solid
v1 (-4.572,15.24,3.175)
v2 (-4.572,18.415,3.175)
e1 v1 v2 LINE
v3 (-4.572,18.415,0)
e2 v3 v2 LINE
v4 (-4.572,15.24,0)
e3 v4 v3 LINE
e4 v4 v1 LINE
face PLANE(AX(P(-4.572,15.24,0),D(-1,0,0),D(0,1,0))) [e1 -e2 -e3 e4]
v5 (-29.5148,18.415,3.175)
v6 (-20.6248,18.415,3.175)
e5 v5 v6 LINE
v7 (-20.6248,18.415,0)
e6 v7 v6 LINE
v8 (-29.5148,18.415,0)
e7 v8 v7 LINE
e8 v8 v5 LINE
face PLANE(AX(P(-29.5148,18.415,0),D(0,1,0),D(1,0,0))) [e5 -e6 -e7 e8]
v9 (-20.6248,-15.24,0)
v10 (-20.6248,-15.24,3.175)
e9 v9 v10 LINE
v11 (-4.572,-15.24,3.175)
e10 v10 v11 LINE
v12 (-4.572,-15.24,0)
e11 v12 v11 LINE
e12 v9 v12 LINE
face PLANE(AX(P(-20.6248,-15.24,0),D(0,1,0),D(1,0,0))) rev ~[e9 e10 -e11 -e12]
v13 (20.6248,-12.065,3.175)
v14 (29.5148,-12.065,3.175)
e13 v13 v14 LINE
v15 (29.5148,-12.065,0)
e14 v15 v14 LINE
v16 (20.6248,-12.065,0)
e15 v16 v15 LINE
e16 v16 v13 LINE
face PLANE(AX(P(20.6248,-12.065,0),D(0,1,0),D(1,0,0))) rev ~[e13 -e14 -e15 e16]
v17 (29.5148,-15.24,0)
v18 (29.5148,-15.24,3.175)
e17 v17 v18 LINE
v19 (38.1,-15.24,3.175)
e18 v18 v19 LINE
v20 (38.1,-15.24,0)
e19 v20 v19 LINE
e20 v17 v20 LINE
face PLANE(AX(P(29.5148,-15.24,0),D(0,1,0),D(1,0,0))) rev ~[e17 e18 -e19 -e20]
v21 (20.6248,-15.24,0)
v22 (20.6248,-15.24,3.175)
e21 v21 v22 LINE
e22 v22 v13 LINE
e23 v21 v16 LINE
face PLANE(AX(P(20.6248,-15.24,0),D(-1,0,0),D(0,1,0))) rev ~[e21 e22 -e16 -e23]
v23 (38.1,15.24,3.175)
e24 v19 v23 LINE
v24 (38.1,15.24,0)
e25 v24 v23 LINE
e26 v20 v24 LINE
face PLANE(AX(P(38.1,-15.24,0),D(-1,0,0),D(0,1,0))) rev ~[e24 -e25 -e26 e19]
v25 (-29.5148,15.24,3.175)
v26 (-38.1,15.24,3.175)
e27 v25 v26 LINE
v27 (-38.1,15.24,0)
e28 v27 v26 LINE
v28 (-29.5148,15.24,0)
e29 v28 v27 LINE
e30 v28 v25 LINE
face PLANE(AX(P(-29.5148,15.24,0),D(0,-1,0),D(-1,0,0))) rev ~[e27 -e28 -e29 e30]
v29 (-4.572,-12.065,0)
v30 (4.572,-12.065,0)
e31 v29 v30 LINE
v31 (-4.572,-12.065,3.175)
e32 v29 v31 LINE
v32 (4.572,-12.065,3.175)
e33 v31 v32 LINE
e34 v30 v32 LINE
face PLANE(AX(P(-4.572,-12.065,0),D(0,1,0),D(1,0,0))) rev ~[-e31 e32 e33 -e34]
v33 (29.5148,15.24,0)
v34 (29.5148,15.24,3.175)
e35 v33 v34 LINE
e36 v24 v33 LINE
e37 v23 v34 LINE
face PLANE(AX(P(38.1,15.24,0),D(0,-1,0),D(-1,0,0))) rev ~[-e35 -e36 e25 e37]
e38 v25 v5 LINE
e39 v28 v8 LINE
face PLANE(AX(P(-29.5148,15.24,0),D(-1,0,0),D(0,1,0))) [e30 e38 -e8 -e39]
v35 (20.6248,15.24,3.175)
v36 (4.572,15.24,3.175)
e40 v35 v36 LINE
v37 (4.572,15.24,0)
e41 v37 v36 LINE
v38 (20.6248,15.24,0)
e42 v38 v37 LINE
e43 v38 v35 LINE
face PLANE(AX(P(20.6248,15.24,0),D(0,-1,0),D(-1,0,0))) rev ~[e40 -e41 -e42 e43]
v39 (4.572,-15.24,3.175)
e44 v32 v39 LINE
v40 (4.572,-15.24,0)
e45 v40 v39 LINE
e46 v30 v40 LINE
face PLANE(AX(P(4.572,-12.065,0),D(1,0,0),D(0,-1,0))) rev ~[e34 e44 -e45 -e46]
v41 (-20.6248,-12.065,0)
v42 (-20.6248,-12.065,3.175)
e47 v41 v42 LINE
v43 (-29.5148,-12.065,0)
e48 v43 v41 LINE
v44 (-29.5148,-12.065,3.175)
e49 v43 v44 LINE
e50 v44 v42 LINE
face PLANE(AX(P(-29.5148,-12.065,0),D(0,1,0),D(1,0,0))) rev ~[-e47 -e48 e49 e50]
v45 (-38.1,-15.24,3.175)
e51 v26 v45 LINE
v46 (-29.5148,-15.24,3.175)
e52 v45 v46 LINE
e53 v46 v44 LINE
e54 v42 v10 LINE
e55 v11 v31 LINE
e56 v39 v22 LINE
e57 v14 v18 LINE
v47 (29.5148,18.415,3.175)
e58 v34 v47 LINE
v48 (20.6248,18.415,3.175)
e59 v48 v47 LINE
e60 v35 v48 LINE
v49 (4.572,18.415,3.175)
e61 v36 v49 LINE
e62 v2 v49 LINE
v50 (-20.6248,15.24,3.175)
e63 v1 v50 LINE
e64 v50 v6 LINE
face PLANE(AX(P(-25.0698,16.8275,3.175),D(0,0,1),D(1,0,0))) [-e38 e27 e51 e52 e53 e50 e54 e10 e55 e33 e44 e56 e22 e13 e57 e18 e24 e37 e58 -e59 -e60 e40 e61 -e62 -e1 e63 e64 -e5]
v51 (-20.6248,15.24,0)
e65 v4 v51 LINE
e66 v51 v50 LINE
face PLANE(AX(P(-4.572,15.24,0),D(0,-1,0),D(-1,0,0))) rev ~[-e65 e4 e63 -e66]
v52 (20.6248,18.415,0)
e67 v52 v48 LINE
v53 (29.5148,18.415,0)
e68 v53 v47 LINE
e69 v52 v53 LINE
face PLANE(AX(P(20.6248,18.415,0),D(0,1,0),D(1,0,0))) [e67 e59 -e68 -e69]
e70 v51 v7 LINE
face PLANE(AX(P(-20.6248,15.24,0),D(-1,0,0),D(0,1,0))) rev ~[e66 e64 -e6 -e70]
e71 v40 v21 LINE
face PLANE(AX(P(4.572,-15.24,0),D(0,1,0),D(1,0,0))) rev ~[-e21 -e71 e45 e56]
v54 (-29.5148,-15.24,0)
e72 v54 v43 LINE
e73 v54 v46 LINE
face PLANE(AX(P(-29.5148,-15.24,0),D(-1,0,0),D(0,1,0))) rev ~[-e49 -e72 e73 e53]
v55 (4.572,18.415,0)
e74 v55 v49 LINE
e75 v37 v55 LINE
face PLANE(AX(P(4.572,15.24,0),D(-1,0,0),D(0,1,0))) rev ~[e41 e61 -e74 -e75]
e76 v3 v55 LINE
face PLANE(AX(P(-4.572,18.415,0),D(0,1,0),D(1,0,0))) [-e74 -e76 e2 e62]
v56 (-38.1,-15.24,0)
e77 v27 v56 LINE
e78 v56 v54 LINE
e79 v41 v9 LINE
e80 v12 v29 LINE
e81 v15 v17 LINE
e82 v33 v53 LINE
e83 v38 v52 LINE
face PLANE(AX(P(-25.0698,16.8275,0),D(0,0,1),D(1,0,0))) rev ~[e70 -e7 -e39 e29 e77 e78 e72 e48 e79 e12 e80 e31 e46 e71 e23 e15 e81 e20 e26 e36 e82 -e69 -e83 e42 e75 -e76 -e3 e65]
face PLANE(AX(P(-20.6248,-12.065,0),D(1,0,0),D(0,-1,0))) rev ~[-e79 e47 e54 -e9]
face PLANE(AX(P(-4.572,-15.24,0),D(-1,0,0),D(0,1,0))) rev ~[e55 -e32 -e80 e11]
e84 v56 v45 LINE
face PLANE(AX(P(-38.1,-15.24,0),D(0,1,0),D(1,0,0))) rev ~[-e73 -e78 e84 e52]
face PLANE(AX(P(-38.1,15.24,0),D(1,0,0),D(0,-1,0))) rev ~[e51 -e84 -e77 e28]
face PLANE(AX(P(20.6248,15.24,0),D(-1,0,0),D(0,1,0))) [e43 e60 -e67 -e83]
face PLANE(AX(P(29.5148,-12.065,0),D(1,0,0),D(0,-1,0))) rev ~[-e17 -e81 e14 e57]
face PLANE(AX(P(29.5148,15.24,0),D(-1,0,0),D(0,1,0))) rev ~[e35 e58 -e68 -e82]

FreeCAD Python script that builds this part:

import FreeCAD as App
import Part
import Sketcher
Q = App.Units.Quantity

doc = App.newDocument("Part")
body = doc.addObject("PartDesign::Body", "Body")

# Sketch on XY plane
sketch1 = body.newObject("Sketcher::SketchObject", "Sketch")
sketch1.AttachmentSupport = (doc.getObject("XY_Plane"), [""])
sketch1.MapMode = "FlatFace"
sketch1.addGeometry(Part.LineSegment(App.Vector(-29.5148, 18.415, 0), App.Vector(-29.5148, 15.24, 0)), False)
sketch1.addGeometry(Part.LineSegment(App.Vector(-29.5148, 15.24, 0), App.Vector(-38.1, 15.24, 0)), False)
sketch1.addGeometry(Part.LineSegment(App.Vector(-38.1, 15.24, 0), App.Vector(-38.1, -15.24, 0)), False)
sketch1.addGeometry(Part.LineSegment(App.Vector(-38.1, -15.24, 0), App.Vector(-29.5148, -15.24, 0)), False)
sketch1.addGeometry(Part.LineSegment(App.Vector(-29.5148, -15.24, 0), App.Vector(-29.5148, -12.065, 0)), False)
sketch1.addGeometry(Part.LineSegment(App.Vector(-29.5148, -12.065, 0), App.Vector(-20.6248, -12.065, 0)), False)
sketch1.addGeometry(Part.LineSegment(App.Vector(-20.6248, -12.065, 0), App.Vector(-20.6248, -15.24, 0)), False)
sketch1.addGeometry(Part.LineSegment(App.Vector(-20.6248, -15.24, 0), App.Vector(-4.572, -15.24, 0)), False)
sketch1.addGeometry(Part.LineSegment(App.Vector(-4.572, -15.24, 0), App.Vector(-4.572, -12.065, 0)), False)
sketch1.addGeometry(Part.LineSegment(App.Vector(-4.572, -12.065, 0), App.Vector(4.572, -12.065, 0)), False)
sketch1.addGeometry(Part.LineSegment(App.Vector(4.572, -12.065, 0), App.Vector(4.572, -15.24, 0)), False)
sketch1.addGeometry(Part.LineSegment(App.Vector(4.572, -15.24, 0), App.Vector(20.6248, -15.24, 0)), False)
sketch1.addGeometry(Part.LineSegment(App.Vector(20.6248, -15.24, 0), App.Vector(20.6248, -12.065, 0)), False)
sketch1.addGeometry(Part.LineSegment(App.Vector(20.6248, -12.065, 0), App.Vector(29.5148, -12.065, 0)), False)
sketch1.addGeometry(Part.LineSegment(App.Vector(29.5148, -12.065, 0), App.Vector(29.5148, -15.24, 0)), False)
sketch1.addGeometry(Part.LineSegment(App.Vector(29.5148, -15.24, 0), App.Vector(38.1, -15.24, 0)), False)
sketch1.addGeometry(Part.LineSegment(App.Vector(38.1, -15.24, 0), App.Vector(38.1, 15.24, 0)), False)
sketch1.addGeometry(Part.LineSegment(App.Vector(38.1, 15.24, 0), App.Vector(29.5148, 15.24, 0)), False)
sketch1.addGeometry(Part.LineSegment(App.Vector(29.5148, 15.24, 0), App.Vector(29.5148, 18.415, 0)), False)
sketch1.addGeometry(Part.LineSegment(App.Vector(29.5148, 18.415, 0), App.Vector(20.6248, 18.415, 0)), False)
sketch1.addGeometry(Part.LineSegment(App.Vector(20.6248, 18.415, 0), App.Vector(20.6248, 15.24, 0)), False)
sketch1.addGeometry(Part.LineSegment(App.Vector(20.6248, 15.24, 0), App.Vector(4.572, 15.24, 0)), False)
sketch1.addGeometry(Part.LineSegment(App.Vector(4.572, 15.24, 0), App.Vector(4.572, 18.415, 0)), False)
sketch1.addGeometry(Part.LineSegment(App.Vector(4.572, 18.415, 0), App.Vector(-4.572, 18.415, 0)), False)
sketch1.addGeometry(Part.LineSegment(App.Vector(-4.572, 18.415, 0), App.Vector(-4.572, 15.24, 0)), False)
sketch1.addGeometry(Part.LineSegment(App.Vector(-4.572, 15.24, 0), App.Vector(-20.6248, 15.24, 0)), False)
sketch1.addGeometry(Part.LineSegment(App.Vector(-20.6248, 15.24, 0), App.Vector(-20.6248, 18.415, 0)), False)
sketch1.addGeometry(Part.LineSegment(App.Vector(-20.6248, 18.415, 0), App.Vector(-29.5148, 18.415, 0)), False)
sketch1.addConstraint(Sketcher.Constraint("Coincident", 0, 2, 1, 1))
sketch1.addConstraint(Sketcher.Constraint("Coincident", 1, 2, 2, 1))
sketch1.addConstraint(Sketcher.Constraint("Coincident", 2, 2, 3, 1))
sketch1.addConstraint(Sketcher.Constraint("Coincident", 3, 2, 4, 1))
sketch1.addConstraint(Sketcher.Constraint("Coincident", 4, 2, 5, 1))
sketch1.addConstraint(Sketcher.Constraint("Coincident", 5, 2, 6, 1))
sketch1.addConstraint(Sketcher.Constraint("Coincident", 6, 2, 7, 1))
sketch1.addConstraint(Sketcher.Constraint("Coincident", 7, 2, 8, 1))
sketch1.addConstraint(Sketcher.Constraint("Coincident", 8, 2, 9, 1))
sketch1.addConstraint(Sketcher.Constraint("Coincident", 9, 2, 10, 1))
sketch1.addConstraint(Sketcher.Constraint("Coincident", 10, 2, 11, 1))
sketch1.addConstraint(Sketcher.Constraint("Coincident", 11, 2, 12, 1))
sketch1.addConstraint(Sketcher.Constraint("Coincident", 12, 2, 13, 1))
sketch1.addConstraint(Sketcher.Constraint("Coincident", 13, 2, 14, 1))
sketch1.addConstraint(Sketcher.Constraint("Coincident", 14, 2, 15, 1))
sketch1.addConstraint(Sketcher.Constraint("Coincident", 15, 2, 16, 1))
sketch1.addConstraint(Sketcher.Constraint("Coincident", 16, 2, 17, 1))
sketch1.addConstraint(Sketcher.Constraint("Coincident", 17, 2, 18, 1))
sketch1.addConstraint(Sketcher.Constraint("Coincident", 18, 2, 19, 1))
sketch1.addConstraint(Sketcher.Constraint("Coincident", 19, 2, 20, 1))
sketch1.addConstraint(Sketcher.Constraint("Coincident", 20, 2, 21, 1))
sketch1.addConstraint(Sketcher.Constraint("Coincident", 21, 2, 22, 1))
sketch1.addConstraint(Sketcher.Constraint("Coincident", 22, 2, 23, 1))
sketch1.addConstraint(Sketcher.Constraint("Coincident", 23, 2, 24, 1))
sketch1.addConstraint(Sketcher.Constraint("Coincident", 24, 2, 25, 1))
sketch1.addConstraint(Sketcher.Constraint("Coincident", 25, 2, 26, 1))
sketch1.addConstraint(Sketcher.Constraint("Coincident", 26, 2, 27, 1))
sketch1.addConstraint(Sketcher.Constraint("Coincident", 27, 2, 0, 1))
sketch1.addConstraint(Sketcher.Constraint("Vertical", 0))
sketch1.addConstraint(Sketcher.Constraint("Horizontal", 1))
sketch1.addConstraint(Sketcher.Constraint("Vertical", 2))
sketch1.addConstraint(Sketcher.Constraint("Horizontal", 3))
sketch1.addConstraint(Sketcher.Constraint("Vertical", 4))
sketch1.addConstraint(Sketcher.Constraint("Horizontal", 5))
sketch1.addConstraint(Sketcher.Constraint("Vertical", 6))
sketch1.addConstraint(Sketcher.Constraint("Horizontal", 7))
sketch1.addConstraint(Sketcher.Constraint("Vertical", 8))
sketch1.addConstraint(Sketcher.Constraint("Horizontal", 9))
sketch1.addConstraint(Sketcher.Constraint("Vertical", 10))
sketch1.addConstraint(Sketcher.Constraint("Horizontal", 11))
sketch1.addConstraint(Sketcher.Constraint("Vertical", 12))
sketch1.addConstraint(Sketcher.Constraint("Horizontal", 13))
sketch1.addConstraint(Sketcher.Constraint("Vertical", 14))
sketch1.addConstraint(Sketcher.Constraint("Horizontal", 15))
sketch1.addConstraint(Sketcher.Constraint("Vertical", 16))
sketch1.addConstraint(Sketcher.Constraint("Horizontal", 17))
sketch1.addConstraint(Sketcher.Constraint("Vertical", 18))
sketch1.addConstraint(Sketcher.Constraint("Horizontal", 19))
sketch1.addConstraint(Sketcher.Constraint("Vertical", 20))
sketch1.addConstraint(Sketcher.Constraint("Horizontal", 21))
sketch1.addConstraint(Sketcher.Constraint("Vertical", 22))
sketch1.addConstraint(Sketcher.Constraint("Horizontal", 23))
sketch1.addConstraint(Sketcher.Constraint("Vertical", 24))
sketch1.addConstraint(Sketcher.Constraint("Horizontal", 25))
sketch1.addConstraint(Sketcher.Constraint("Vertical", 26))
sketch1.addConstraint(Sketcher.Constraint("Horizontal", 27))
sketch1.addConstraint(Sketcher.Constraint("Symmetric", 0, 2, 14, 2, -1, 1))
sketch1.addConstraint(Sketcher.Constraint("Symmetric", 2, 2, 16, 2, -1, 1))
sketch1.addConstraint(Sketcher.Constraint("Symmetric", 6, 2, 20, 2, -1, 1))
sketch1.addConstraint(Sketcher.Constraint("Symmetric", 10, 2, 24, 2, -1, 1))
sketch1.addConstraint(Sketcher.Constraint("Symmetric", 7, 2, 10, 2, -2))
sketch1.addConstraint(Sketcher.Constraint("Symmetric", 5, 2, 12, 2, -2))
sketch1.addConstraint(Sketcher.Constraint("Symmetric", 3, 2, 14, 2, -2))
sketch1.addConstraint(Sketcher.Constraint("Symmetric", 19, 2, 26, 2, -2))
sketch1.addConstraint(Sketcher.Constraint("Horizontal", 3, 2, 6, 2))
sketch1.addConstraint(Sketcher.Constraint("Horizontal", 5, 2, 8, 2))
sketch1.addConstraint(Sketcher.Constraint("Horizontal", 19, 2, 22, 2))
sketch1.addConstraint(Sketcher.Constraint("Vertical", 14, 2, 17, 2))
sketch1.addConstraint(Sketcher.Constraint("Vertical", 10, 2, 21, 2))
sketch1.addConstraint(Sketcher.Constraint("Equal", 0, 4))
sketch1.addConstraint(Sketcher.Constraint("DistanceY", 2, 2, 2, 1, Q("1.2 in")))
sketch1.addConstraint(Sketcher.Constraint("DistanceX", 5, 1, 5, 2, Q("0.35 in")))
sketch1.addConstraint(Sketcher.Constraint("DistanceX", 9, 1, 9, 2, Q("0.36 in")))
sketch1.addConstraint(Sketcher.Constraint("DistanceX", 1, 2, -1, 1, Q("1.5 in")))
sketch1.addConstraint(Sketcher.Constraint("DistanceX", 1, 2, 1, 1, Q("0.338 in")))
sketch1.addConstraint(Sketcher.Constraint("DistanceY", 0, 2, 0, 1, Q("0.125 in")))
pad1 = body.newObject("PartDesign::Pad", "Pad")
pad1.Profile = sketch1
pad1.Length = Q("0.125 in")

doc.recompute()
